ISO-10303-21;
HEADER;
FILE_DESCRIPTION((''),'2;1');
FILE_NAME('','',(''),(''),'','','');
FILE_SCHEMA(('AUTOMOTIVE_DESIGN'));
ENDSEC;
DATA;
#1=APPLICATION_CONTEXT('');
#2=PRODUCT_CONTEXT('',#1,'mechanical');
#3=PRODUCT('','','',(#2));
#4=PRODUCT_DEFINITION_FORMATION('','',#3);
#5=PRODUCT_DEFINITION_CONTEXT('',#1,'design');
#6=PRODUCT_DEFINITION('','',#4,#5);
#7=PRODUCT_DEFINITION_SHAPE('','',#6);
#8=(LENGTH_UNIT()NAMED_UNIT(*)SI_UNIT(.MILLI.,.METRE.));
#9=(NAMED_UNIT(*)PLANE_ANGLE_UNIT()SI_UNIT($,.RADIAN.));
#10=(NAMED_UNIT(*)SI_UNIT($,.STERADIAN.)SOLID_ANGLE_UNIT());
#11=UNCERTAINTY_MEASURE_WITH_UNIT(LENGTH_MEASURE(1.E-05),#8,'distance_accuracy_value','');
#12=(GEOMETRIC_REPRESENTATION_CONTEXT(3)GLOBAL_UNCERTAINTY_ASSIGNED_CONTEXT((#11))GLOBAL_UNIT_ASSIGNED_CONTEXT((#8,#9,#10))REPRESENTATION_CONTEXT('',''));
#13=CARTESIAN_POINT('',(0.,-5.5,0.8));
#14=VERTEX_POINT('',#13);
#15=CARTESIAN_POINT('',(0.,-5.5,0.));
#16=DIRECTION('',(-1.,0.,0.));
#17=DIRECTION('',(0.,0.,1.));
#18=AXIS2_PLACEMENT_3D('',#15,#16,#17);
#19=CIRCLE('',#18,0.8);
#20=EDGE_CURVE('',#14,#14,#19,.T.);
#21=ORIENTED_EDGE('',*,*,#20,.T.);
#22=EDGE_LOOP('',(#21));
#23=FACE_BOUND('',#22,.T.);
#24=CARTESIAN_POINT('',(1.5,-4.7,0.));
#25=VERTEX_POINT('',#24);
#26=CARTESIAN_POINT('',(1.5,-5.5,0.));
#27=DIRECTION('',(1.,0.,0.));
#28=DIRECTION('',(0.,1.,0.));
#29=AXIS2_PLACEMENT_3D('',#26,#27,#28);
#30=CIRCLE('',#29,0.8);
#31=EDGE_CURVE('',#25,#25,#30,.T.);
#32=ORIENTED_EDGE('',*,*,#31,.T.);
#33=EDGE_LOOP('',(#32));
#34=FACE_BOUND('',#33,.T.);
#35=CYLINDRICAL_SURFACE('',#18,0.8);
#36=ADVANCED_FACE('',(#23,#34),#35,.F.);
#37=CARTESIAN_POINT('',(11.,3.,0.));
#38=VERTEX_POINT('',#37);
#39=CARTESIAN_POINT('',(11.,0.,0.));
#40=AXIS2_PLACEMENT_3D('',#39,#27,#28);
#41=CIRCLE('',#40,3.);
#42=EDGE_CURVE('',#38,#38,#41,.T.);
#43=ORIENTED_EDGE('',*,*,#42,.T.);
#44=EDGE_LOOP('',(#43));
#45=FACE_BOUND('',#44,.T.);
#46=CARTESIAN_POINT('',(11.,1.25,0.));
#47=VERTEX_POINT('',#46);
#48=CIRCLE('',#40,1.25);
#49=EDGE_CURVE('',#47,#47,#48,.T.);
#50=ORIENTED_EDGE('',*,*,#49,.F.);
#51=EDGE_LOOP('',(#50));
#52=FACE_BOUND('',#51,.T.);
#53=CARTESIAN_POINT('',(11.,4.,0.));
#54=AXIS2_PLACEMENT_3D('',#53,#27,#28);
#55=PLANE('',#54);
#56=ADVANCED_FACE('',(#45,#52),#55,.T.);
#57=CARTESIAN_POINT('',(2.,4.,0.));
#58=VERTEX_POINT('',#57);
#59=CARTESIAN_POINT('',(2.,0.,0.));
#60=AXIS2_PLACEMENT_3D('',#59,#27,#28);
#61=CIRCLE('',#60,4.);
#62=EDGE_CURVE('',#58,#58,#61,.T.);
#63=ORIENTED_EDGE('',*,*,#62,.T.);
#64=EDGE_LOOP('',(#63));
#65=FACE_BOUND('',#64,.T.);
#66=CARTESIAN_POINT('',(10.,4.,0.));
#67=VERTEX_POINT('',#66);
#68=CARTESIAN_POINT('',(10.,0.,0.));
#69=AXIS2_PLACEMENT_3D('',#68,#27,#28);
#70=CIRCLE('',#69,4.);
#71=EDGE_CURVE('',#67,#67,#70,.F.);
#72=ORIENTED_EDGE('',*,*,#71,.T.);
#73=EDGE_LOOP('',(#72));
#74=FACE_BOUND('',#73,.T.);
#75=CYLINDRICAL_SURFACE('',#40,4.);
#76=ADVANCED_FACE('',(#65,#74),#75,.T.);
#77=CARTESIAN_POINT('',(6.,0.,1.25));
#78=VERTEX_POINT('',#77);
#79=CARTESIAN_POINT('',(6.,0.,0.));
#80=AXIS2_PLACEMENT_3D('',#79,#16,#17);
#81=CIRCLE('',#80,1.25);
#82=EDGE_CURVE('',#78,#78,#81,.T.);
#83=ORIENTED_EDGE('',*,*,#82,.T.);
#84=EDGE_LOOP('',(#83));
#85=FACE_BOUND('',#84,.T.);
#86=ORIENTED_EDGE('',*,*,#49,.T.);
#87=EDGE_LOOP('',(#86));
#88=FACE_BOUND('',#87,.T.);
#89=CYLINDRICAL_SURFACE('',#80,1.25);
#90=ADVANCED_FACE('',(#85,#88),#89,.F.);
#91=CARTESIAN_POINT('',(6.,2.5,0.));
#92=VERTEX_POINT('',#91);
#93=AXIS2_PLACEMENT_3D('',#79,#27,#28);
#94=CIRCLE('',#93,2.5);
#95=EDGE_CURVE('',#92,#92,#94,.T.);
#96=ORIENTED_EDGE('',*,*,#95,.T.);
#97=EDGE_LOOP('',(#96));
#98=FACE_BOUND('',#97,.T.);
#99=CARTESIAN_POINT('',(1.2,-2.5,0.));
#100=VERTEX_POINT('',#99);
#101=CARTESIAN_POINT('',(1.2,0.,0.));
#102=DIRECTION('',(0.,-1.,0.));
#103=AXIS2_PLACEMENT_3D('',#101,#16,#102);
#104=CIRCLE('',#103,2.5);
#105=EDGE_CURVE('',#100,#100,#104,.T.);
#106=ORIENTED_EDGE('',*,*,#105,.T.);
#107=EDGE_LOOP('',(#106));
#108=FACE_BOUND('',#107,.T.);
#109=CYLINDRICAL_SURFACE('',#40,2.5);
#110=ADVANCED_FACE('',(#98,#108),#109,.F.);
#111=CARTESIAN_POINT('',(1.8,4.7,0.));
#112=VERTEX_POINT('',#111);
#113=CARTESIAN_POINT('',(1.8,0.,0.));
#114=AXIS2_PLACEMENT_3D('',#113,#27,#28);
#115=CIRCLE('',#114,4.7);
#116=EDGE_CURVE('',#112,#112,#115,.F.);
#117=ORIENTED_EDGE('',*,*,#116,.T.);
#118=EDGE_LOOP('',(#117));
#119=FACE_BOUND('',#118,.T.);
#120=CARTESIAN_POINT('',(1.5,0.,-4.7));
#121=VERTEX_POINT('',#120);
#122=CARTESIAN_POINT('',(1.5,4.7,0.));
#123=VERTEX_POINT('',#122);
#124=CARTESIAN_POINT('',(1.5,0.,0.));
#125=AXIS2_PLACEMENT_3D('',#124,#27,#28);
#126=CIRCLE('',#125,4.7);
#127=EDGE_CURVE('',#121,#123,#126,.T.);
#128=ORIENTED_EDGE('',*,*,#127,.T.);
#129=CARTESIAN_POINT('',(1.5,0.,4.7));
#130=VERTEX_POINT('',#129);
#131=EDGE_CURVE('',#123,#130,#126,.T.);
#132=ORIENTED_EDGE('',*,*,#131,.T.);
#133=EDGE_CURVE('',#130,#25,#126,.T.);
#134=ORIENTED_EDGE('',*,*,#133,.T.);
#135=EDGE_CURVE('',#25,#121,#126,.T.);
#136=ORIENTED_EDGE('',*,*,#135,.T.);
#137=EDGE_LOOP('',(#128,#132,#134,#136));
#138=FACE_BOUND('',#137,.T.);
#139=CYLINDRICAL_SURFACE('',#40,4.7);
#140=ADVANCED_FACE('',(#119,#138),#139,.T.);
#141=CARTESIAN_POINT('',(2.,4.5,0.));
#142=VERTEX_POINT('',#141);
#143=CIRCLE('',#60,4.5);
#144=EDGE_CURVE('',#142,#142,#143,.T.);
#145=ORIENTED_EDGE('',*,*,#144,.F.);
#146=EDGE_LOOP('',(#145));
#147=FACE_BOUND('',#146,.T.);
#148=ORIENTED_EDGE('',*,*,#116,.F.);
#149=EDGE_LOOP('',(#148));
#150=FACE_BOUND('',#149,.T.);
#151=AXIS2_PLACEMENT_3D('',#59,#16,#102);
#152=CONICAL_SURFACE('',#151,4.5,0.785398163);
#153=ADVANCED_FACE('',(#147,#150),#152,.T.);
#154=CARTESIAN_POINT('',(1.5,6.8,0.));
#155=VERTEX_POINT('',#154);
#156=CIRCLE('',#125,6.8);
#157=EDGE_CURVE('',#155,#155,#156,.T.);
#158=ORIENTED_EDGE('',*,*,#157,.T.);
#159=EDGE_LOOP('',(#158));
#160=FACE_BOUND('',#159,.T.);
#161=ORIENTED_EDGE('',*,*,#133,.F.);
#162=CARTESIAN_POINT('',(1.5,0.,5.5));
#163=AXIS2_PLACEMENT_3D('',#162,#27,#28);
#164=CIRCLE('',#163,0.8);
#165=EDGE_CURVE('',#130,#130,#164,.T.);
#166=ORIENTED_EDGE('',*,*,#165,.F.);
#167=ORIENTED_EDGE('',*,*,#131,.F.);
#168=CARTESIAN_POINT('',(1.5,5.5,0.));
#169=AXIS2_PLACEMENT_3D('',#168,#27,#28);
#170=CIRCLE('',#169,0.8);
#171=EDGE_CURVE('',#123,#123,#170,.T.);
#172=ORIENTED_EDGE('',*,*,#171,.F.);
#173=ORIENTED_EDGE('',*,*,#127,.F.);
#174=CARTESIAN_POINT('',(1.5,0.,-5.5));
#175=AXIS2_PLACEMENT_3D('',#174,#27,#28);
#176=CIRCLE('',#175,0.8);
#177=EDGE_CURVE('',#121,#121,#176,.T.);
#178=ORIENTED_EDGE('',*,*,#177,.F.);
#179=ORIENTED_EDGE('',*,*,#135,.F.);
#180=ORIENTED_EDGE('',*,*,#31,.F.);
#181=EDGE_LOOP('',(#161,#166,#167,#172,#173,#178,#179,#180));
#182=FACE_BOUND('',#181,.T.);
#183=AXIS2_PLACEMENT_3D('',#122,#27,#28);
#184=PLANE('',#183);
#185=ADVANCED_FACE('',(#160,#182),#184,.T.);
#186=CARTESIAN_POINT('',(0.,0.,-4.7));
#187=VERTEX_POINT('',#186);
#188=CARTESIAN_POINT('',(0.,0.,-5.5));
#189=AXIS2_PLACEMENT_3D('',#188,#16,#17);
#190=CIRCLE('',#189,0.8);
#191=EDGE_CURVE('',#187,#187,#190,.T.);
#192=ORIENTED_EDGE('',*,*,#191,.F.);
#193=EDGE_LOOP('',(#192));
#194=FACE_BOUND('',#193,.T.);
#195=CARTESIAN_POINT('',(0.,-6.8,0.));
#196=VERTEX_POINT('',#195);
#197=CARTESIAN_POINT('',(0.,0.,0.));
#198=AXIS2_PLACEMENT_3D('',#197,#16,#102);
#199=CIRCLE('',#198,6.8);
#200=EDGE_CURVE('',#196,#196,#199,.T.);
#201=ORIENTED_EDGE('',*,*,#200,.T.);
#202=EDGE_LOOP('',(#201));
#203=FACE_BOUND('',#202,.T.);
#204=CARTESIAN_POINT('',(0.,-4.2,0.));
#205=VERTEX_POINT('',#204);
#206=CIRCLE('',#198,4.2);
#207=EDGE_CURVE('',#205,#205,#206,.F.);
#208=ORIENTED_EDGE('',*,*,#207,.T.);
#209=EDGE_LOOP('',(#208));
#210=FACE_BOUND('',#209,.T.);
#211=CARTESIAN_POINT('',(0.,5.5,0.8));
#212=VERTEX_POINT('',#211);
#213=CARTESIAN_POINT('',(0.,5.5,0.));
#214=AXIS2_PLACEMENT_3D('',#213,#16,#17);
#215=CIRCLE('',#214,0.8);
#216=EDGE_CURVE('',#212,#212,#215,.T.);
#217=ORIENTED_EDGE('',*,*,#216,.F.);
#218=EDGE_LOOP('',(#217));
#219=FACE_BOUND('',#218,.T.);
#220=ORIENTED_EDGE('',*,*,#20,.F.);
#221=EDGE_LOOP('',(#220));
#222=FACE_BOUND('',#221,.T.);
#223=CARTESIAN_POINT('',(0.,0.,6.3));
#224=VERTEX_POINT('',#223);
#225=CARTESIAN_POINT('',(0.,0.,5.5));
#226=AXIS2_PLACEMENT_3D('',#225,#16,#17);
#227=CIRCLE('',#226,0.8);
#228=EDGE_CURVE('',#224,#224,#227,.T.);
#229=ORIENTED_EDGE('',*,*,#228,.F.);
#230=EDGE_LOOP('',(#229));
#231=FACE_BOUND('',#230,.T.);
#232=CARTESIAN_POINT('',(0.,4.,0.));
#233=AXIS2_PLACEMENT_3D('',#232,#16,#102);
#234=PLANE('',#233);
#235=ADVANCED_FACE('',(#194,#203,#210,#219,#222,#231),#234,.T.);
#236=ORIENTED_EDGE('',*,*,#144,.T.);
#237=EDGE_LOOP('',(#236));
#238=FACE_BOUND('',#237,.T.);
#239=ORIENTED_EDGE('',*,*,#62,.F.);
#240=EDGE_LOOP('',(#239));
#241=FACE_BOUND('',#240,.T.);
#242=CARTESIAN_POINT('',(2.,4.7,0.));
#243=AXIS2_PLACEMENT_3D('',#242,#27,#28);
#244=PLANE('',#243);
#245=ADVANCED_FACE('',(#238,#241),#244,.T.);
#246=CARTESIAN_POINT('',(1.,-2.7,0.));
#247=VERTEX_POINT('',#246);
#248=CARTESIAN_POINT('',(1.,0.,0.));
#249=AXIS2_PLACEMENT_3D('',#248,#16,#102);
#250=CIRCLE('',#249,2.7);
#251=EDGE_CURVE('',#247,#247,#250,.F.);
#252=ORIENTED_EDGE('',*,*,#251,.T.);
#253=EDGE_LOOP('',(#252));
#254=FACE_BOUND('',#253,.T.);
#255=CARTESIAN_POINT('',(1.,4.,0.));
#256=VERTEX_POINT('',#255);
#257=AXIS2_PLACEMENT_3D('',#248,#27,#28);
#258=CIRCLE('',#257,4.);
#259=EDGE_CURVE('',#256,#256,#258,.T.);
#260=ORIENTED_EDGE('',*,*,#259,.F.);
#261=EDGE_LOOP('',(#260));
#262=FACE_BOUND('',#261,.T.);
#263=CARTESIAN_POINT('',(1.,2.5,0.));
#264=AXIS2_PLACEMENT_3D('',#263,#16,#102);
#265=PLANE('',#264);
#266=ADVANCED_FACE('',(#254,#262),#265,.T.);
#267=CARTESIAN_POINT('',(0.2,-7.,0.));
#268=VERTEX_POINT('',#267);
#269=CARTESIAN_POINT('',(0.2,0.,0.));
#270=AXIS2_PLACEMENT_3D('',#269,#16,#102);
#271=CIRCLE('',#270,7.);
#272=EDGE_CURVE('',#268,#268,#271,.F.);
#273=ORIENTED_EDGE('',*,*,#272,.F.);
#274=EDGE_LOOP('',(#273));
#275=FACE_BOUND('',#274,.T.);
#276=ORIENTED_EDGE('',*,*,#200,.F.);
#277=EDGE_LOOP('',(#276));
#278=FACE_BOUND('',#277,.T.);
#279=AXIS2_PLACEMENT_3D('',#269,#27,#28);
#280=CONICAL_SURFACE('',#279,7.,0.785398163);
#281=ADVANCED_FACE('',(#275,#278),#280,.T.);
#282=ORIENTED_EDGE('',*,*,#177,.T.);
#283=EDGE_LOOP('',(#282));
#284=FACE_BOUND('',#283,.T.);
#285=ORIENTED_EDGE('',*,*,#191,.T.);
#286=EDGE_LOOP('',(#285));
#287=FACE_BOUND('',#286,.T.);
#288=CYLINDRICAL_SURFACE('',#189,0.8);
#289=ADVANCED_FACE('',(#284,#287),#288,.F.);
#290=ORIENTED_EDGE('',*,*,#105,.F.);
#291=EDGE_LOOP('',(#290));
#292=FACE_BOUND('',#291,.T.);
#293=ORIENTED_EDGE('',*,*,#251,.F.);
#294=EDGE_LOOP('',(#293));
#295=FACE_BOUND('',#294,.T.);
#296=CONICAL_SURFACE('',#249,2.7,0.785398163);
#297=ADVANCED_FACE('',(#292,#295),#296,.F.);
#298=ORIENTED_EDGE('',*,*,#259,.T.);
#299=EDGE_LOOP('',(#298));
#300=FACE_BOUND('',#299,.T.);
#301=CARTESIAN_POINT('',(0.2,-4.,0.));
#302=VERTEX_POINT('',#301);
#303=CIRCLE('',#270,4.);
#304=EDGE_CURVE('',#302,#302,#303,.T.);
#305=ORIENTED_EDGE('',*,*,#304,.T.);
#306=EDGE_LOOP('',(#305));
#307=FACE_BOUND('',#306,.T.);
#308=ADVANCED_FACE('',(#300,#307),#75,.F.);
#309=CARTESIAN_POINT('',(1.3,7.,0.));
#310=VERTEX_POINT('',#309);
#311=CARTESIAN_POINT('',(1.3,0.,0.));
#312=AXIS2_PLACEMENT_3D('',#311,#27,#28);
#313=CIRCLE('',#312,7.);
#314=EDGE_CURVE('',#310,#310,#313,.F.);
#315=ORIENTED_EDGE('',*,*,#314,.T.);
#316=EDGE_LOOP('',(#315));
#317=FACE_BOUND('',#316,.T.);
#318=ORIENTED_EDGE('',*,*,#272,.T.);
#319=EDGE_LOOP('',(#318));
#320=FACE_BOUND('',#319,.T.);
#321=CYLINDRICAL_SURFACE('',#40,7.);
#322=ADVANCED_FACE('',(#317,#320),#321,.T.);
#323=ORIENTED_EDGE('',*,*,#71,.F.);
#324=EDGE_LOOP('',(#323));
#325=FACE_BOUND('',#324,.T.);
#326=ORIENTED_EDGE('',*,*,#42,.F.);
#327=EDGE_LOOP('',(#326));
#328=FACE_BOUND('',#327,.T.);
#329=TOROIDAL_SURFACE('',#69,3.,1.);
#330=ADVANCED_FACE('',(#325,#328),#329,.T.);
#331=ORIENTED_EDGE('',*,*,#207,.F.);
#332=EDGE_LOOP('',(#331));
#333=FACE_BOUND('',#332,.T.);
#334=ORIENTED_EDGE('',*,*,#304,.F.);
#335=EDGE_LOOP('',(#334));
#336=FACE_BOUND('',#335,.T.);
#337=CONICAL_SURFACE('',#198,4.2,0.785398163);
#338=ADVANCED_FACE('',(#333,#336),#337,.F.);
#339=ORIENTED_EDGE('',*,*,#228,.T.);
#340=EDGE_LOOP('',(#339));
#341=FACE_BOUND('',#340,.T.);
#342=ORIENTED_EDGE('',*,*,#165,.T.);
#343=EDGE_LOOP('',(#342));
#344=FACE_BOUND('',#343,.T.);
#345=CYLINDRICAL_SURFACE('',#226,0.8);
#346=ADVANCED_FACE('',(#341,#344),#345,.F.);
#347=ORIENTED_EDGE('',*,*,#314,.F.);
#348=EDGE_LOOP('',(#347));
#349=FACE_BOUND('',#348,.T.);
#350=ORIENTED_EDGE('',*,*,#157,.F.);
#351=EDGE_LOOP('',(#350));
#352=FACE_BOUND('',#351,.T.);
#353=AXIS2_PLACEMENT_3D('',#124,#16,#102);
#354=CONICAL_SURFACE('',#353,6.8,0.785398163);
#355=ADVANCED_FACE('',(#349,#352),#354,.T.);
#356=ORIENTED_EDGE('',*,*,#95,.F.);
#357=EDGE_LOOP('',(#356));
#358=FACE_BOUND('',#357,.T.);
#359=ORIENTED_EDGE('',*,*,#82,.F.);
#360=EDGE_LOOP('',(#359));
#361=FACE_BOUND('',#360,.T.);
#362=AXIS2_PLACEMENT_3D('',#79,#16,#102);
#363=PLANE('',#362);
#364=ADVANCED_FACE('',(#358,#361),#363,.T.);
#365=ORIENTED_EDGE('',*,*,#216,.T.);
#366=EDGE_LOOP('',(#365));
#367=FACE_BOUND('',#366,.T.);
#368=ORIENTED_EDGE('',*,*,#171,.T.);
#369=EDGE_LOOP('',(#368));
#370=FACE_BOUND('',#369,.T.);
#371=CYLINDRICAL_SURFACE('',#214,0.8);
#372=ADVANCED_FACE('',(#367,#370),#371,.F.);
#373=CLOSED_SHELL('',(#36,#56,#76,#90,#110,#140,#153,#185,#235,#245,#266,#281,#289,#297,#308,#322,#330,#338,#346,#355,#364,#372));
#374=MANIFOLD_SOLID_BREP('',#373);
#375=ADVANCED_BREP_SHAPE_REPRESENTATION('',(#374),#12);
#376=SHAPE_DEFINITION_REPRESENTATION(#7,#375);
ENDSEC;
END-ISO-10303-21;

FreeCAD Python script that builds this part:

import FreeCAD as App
import Part
import Sketcher

V = App.Vector


def edges_at(feature, points):
    """Names of the edges that pass closest to the given points."""
    edges = feature.Shape.Edges
    near = lambda p: min(range(len(edges)), key=lambda i: edges[i].distToShape(Part.Vertex(*p))[0])
    return sorted({f"Edge{near(p) + 1}" for p in points})


def add_polygon(sketch, points):
    """Adds a closed chain of lines whose ends are joined by coincident constraints."""
    first, n = sketch.GeometryCount, len(points)
    for a, b in zip(points, points[1:] + points[:1]):
        sketch.addGeometry(Part.LineSegment(App.Vector(*a, 0), App.Vector(*b, 0)), False)
    for i in range(n):
        sketch.addConstraint(Sketcher.Constraint("Coincident", first + i, 2, first + (i + 1) % n, 1))

doc = App.newDocument("Part")
body = doc.addObject("PartDesign::Body", "Body")

# Sketch on XY plane
sketch1 = body.newObject("Sketcher::SketchObject", "Sketch")
sketch1.AttachmentSupport = (doc.getObject("XY_Plane"), [""])
sketch1.MapMode = "FlatFace"
add_polygon(sketch1, [(6, 0), (11, 0), (11, 4), (2, 4), (2, 4.7), (1.5, 4.7), (1.5, 7), (0, 7), (0, 4), (1, 4), (1, 2.5), (6, 2.5)])  # lines 0-11
sketch1.addConstraint([
    Sketcher.Constraint("Horizontal", 0),
    Sketcher.Constraint("Vertical", 1),
    Sketcher.Constraint("Horizontal", 2),
    Sketcher.Constraint("Vertical", 3),
    Sketcher.Constraint("Horizontal", 4),
    Sketcher.Constraint("Vertical", 5),
    Sketcher.Constraint("Horizontal", 6),
    Sketcher.Constraint("Vertical", 7),
    Sketcher.Constraint("Horizontal", 8),
    Sketcher.Constraint("Vertical", 9),
    Sketcher.Constraint("Horizontal", 10),
    Sketcher.Constraint("Vertical", 11),
    Sketcher.Constraint("PointOnObject", 0, 2, -1),
    Sketcher.Constraint("PointOnObject", 6, 2, -2),
    Sketcher.Constraint("Horizontal", 2, 2, 7, 2),
    Sketcher.Constraint("Equal", 0, 10),
    Sketcher.Constraint("Equal", 6, 9),
    Sketcher.Constraint("DistanceX", 0, 1, 0, 2, 5.0),
    Sketcher.Constraint("DistanceX", 2, 2, 2, 1, 9.0),
    Sketcher.Constraint("DistanceX", 8, 1, 8, 2, 1.0),
    Sketcher.Constraint("DistanceY", 1, 1, 1, 2, 4.0),
    Sketcher.Constraint("DistanceY", 7, 2, 7, 1, 3.0),
    Sketcher.Constraint("DistanceX", 4, 2, 4, 1, 0.5),
    Sketcher.Constraint("DistanceY", 3, 1, 3, 2, 0.7),
])
revolution = body.newObject("PartDesign::Revolution", "Revolution")
revolution.Profile = sketch1
revolution.ReferenceAxis = (sketch1, ["H_Axis"])
revolution.Angle = 360

# Sketch on YZ plane
sketch2 = body.newObject("Sketcher::SketchObject", "Sketch001")
sketch2.AttachmentSupport = (doc.getObject("YZ_Plane"), [""])
sketch2.MapMode = "FlatFace"
sketch2.AttachmentOffset = App.Placement(V(0, 0, 6), App.Rotation())
sketch2.addGeometry(Part.Circle(V(0, 0, 0), V(0, 0, 1), 1.2), False)
sketch2.addConstraint([
    Sketcher.Constraint("Coincident", 0, 3, -1, 1),
    Sketcher.Constraint("Diameter", 0, 2.5),
])
doc.recompute()
hole = body.newObject("PartDesign::Hole", "Hole")
hole.Profile = sketch2
hole.ThreadType = "None"
hole.Diameter = 2.5
hole.DepthType = "ThroughAll"
hole.Reversed = True
doc.recompute()

fillet = body.newObject("PartDesign::Fillet", "Fillet")
fillet.Base = (hole, edges_at(hole, [(11, -4, 0)]))
fillet.Radius = 1
doc.recompute()

chamfer = body.newObject("PartDesign::Chamfer", "Chamfer")
chamfer.Base = (fillet, edges_at(fillet, [
    (1.5, -7, 0),
    (0, -7, 0),
    (0, -4, 0),
    (1, -2.5, 0),
]))
chamfer.Size = 0.2

# Sketch on YZ plane
sketch3 = body.newObject("Sketcher::SketchObject", "Sketch002")
sketch3.AttachmentSupport = (doc.getObject("YZ_Plane"), [""])
sketch3.MapMode = "FlatFace"
sketch3.addGeometry(Part.Circle(V(-5.5, 0, 0), V(0, 0, 1), 0.8), False)
sketch3.addConstraint([
    Sketcher.Constraint("PointOnObject", 0, 3, -1),
    Sketcher.Constraint("Diameter", 0, 1.6),
    Sketcher.Constraint("DistanceX", 0, 3, -1, 1, 5.5),
])
doc.recompute()
hole2 = body.newObject("PartDesign::Hole", "Hole001")
hole2.Profile = sketch3
hole2.ThreadType = "None"
hole2.Diameter = 1.6
hole2.DepthType = "ThroughAll"
hole2.Reversed = True
doc.recompute()

polarpattern = body.newObject("PartDesign::PolarPattern", "PolarPattern")
polarpattern.Originals = [hole2]
polarpattern.Axis = (doc.getObject("X_Axis"), [""])
polarpattern.Angle = 360
polarpattern.Occurrences = 4
body.Tip = polarpattern
doc.recompute()

chamfer2 = body.newObject("PartDesign::Chamfer", "Chamfer001")
chamfer2.Base = (polarpattern, edges_at(polarpattern, [(2, -4.7, 0)]))
chamfer2.Size = 0.2

doc.recompute()
